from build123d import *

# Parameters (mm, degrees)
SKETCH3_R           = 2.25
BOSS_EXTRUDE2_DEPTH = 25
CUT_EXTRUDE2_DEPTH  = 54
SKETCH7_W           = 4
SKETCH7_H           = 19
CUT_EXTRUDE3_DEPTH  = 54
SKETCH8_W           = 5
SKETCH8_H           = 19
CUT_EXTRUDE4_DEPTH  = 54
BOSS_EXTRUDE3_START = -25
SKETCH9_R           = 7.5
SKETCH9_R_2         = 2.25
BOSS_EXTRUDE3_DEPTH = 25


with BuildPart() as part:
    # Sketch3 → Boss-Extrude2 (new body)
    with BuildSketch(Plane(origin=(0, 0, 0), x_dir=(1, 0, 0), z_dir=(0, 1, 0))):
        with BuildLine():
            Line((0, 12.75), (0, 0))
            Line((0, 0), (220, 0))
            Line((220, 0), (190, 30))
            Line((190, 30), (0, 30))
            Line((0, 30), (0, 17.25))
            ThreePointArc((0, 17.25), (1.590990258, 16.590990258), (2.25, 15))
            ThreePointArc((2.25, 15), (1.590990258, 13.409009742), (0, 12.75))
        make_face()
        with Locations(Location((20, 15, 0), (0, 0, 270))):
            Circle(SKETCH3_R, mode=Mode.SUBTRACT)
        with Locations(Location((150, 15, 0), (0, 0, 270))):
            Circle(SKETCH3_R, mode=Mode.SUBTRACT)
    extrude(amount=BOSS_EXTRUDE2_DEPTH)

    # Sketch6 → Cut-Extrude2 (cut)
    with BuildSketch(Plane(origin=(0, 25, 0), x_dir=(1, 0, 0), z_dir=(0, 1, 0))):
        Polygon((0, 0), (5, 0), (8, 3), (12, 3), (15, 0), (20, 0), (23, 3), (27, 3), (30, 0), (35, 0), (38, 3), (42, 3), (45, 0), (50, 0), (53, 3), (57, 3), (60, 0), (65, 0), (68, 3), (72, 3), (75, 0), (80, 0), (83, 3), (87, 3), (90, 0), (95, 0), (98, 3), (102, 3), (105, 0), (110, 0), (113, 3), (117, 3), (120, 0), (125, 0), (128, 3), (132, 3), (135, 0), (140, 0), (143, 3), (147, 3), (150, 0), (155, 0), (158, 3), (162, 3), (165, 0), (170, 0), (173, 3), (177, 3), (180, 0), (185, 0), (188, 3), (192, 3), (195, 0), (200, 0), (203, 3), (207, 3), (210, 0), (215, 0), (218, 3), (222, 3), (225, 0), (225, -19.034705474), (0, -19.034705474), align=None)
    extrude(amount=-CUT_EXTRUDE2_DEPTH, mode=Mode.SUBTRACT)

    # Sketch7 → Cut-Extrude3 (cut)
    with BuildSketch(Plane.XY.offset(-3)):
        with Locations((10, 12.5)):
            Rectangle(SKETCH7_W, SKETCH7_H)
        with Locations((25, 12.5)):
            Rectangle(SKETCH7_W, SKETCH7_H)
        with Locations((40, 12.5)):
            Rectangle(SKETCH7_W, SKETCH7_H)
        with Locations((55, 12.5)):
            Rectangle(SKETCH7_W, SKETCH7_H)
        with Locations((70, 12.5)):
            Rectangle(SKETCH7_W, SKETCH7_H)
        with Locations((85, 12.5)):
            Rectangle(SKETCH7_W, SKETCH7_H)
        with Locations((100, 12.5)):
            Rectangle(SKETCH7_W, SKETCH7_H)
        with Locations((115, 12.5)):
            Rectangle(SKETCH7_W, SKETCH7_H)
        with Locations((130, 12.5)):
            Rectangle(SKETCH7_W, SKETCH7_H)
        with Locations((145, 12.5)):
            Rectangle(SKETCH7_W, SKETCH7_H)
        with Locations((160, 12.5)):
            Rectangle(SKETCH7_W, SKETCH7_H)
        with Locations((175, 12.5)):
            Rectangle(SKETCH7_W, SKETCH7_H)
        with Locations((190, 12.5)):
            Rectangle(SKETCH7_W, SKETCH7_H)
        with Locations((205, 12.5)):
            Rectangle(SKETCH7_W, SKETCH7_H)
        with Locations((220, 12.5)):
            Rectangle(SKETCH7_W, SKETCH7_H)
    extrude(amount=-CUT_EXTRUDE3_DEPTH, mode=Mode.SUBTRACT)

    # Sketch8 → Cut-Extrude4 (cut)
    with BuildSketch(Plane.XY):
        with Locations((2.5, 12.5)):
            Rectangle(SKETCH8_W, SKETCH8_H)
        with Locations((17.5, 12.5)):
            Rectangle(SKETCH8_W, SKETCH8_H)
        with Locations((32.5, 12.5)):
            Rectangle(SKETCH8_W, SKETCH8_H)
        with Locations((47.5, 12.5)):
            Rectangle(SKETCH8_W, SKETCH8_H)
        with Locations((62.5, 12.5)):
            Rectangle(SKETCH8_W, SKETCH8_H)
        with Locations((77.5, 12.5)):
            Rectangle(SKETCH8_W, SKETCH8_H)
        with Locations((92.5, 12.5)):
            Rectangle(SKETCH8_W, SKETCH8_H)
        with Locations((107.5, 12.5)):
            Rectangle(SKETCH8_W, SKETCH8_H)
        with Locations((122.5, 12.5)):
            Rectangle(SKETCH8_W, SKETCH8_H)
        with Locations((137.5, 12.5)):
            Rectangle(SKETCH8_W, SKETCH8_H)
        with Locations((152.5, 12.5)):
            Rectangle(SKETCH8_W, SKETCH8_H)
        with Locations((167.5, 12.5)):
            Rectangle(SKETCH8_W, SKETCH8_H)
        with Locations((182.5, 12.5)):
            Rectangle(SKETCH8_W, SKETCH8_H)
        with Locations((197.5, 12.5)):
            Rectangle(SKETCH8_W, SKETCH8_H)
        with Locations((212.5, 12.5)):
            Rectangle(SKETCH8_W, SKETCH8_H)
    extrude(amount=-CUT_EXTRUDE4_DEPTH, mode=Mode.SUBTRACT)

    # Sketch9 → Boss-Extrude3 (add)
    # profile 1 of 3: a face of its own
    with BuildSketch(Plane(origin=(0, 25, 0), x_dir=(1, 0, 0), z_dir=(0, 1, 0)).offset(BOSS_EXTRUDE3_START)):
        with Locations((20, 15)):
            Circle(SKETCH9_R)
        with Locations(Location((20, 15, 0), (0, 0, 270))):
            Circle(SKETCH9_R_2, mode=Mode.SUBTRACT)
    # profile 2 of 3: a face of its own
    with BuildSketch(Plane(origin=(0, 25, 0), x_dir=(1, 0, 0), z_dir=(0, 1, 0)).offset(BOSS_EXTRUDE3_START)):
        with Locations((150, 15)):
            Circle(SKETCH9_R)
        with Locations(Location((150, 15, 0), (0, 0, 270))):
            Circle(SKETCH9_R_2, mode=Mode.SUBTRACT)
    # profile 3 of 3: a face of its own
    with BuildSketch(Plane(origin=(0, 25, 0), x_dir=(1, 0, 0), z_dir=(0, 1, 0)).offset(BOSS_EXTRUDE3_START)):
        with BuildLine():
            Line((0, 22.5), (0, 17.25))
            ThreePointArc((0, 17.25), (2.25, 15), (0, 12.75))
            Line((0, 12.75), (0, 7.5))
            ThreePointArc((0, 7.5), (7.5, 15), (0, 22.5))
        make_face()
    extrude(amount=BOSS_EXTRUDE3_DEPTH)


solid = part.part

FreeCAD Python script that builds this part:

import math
import FreeCAD as App
import Part
import Sketcher
from FreeCAD import Vector
Q = App.Units.Quantity

doc = App.newDocument("Part")
body = doc.addObject("PartDesign::Body", "Body")

# Sketch on XZ plane
sketch1 = body.newObject("Sketcher::SketchObject", "Sketch")
sketch1.AttachmentSupport = (doc.getObject("XZ_Plane"), [""])
sketch1.MapMode = "FlatFace"
sketch1.addGeometry([
    Part.LineSegment(Vector(0, -12.8, 0), Vector(0, 0, 0)),  # 0
    Part.LineSegment(Vector(0, 0, 0), Vector(220, 0, 0)),  # 1
    Part.LineSegment(Vector(220, 0, 0), Vector(190, -30, 0)),  # 2
    Part.LineSegment(Vector(190, -30, 0), Vector(0, -30, 0)),  # 3
    Part.LineSegment(Vector(0, -30, 0), Vector(0, -17.2, 0)),  # 4
    Part.ArcOfCircle(Part.Circle(Vector(0, -15, 0), Vector(0, 0, 1), 2.2), math.radians(-90), math.radians(0)),  # 5
    Part.ArcOfCircle(Part.Circle(Vector(0, -15, 0), Vector(0, 0, 1), 2.2), math.radians(0), math.radians(90)),  # 6
    Part.Circle(Vector(20, -15, 0), Vector(0, 0, 1), 2.2),  # 7
    Part.Circle(Vector(150, -15, 0), Vector(0, 0, 1), 2.2),  # 8
], False)
sketch1.addConstraint([
    Sketcher.Constraint("Coincident", 0, 2, 1, 1),
    Sketcher.Constraint("Coincident", 1, 2, 2, 1),
    Sketcher.Constraint("Coincident", 2, 2, 3, 1),
    Sketcher.Constraint("Coincident", 3, 2, 4, 1),
    Sketcher.Constraint("Coincident", 4, 2, 5, 1),
    Sketcher.Constraint("Tangent", 5, 2, 6, 1),
    Sketcher.Constraint("Coincident", 6, 2, 0, 1),
    Sketcher.Constraint("Vertical", 0),
    Sketcher.Constraint("Horizontal", 1),
    Sketcher.Constraint("Horizontal", 3),
    Sketcher.Constraint("Vertical", 4),
    Sketcher.Constraint("Coincident", 0, 2, -1, 1),
    Sketcher.Constraint("Equal", 5, 6),
    Sketcher.Constraint("Equal", 6, 7),
    Sketcher.Constraint("Equal", 7, 8),
    Sketcher.Constraint("PointOnObject", 5, 3, -2),
    Sketcher.Constraint("PointOnObject", 3, 2, -2),
    Sketcher.Constraint("Horizontal", 6, 3, 7, 3),
    Sketcher.Constraint("Horizontal", 7, 3, 8, 3),
    Sketcher.Constraint("Horizontal", 8, 3, 5, 2),
    Sketcher.Constraint("Equal", 0, 4),
    Sketcher.Constraint("Diameter", 7, 4.5),
    Sketcher.Constraint("DistanceX", 1, 1, 1, 2, 220.0),
    Sketcher.Constraint("DistanceX", 3, 2, 3, 1, 190.0),
    Sketcher.Constraint("Angle", 2, Q("-135 deg")),
    Sketcher.Constraint("DistanceX", -1, 1, 7, 3, 20.0),
    Sketcher.Constraint("DistanceX", -1, 1, 8, 3, 150.0),
])
pad1 = body.newObject("PartDesign::Pad", "Pad")
pad1.Profile = sketch1
pad1.Length = 25
pad1.Reversed = True

# Sketch on XZ plane
sketch2 = body.newObject("Sketcher::SketchObject", "Sketch001")
sketch2.AttachmentSupport = (doc.getObject("XZ_Plane"), [""])
sketch2.MapMode = "FlatFace"
sketch2.AttachmentOffset = App.Placement(Vector(0, 0, -25), App.Rotation())
sketch2.addGeometry([
    Part.LineSegment(Vector(5, 0, 0), Vector(0, 0, 0)),  # 0
    Part.LineSegment(Vector(0, 0, 0), Vector(0, 19, 0)),  # 1
    Part.LineSegment(Vector(0, 19, 0), Vector(225, 19, 0)),  # 2
    Part.LineSegment(Vector(225, 19, 0), Vector(225, 0, 0)),  # 3
    Part.LineSegment(Vector(225, 0, 0), Vector(222, -3, 0)),  # 4
    Part.LineSegment(Vector(222, -3, 0), Vector(218, -3, 0)),  # 5
    Part.LineSegment(Vector(218, -3, 0), Vector(215, 0, 0)),  # 6
    Part.LineSegment(Vector(215, 0, 0), Vector(210, 0, 0)),  # 7
    Part.LineSegment(Vector(210, 0, 0), Vector(207, -3, 0)),  # 8
    Part.LineSegment(Vector(207, -3, 0), Vector(203, -3, 0)),  # 9
    Part.LineSegment(Vector(203, -3, 0), Vector(200, 0, 0)),  # 10
    Part.LineSegment(Vector(200, 0, 0), Vector(195, 0, 0)),  # 11
    Part.LineSegment(Vector(195, 0, 0), Vector(192, -3, 0)),  # 12
    Part.LineSegment(Vector(192, -3, 0), Vector(188, -3, 0)),  # 13
    Part.LineSegment(Vector(188, -3, 0), Vector(185, 0, 0)),  # 14
    Part.LineSegment(Vector(185, 0, 0), Vector(180, 0, 0)),  # 15
    Part.LineSegment(Vector(180, 0, 0), Vector(177, -3, 0)),  # 16
    Part.LineSegment(Vector(177, -3, 0), Vector(173, -3, 0)),  # 17
    Part.LineSegment(Vector(173, -3, 0), Vector(170, 0, 0)),  # 18
    Part.LineSegment(Vector(170, 0, 0), Vector(165, 0, 0)),  # 19
    Part.LineSegment(Vector(165, 0, 0), Vector(162, -3, 0)),  # 20
    Part.LineSegment(Vector(162, -3, 0), Vector(158, -3, 0)),  # 21
    Part.LineSegment(Vector(158, -3, 0), Vector(155, 0, 0)),  # 22
    Part.LineSegment(Vector(155, 0, 0), Vector(150, 0, 0)),  # 23
    Part.LineSegment(Vector(150, 0, 0), Vector(147, -3, 0)),  # 24
    Part.LineSegment(Vector(147, -3, 0), Vector(143, -3, 0)),  # 25
    Part.LineSegment(Vector(143, -3, 0), Vector(140, 0, 0)),  # 26
    Part.LineSegment(Vector(140, 0, 0), Vector(135, 0, 0)),  # 27
    Part.LineSegment(Vector(135, 0, 0), Vector(132, -3, 0)),  # 28
    Part.LineSegment(Vector(132, -3, 0), Vector(128, -3, 0)),  # 29
    Part.LineSegment(Vector(128, -3, 0), Vector(125, 0, 0)),  # 30
    Part.LineSegment(Vector(125, 0, 0), Vector(120, 0, 0)),  # 31
    Part.LineSegment(Vector(120, 0, 0), Vector(117, -3, 0)),  # 32
    Part.LineSegment(Vector(117, -3, 0), Vector(113, -3, 0)),  # 33
    Part.LineSegment(Vector(113, -3, 0), Vector(110, 0, 0)),  # 34
    Part.LineSegment(Vector(110, 0, 0), Vector(105, 0, 0)),  # 35
    Part.LineSegment(Vector(105, 0, 0), Vector(102, -3, 0)),  # 36
    Part.LineSegment(Vector(102, -3, 0), Vector(98, -3, 0)),  # 37
    Part.LineSegment(Vector(98, -3, 0), Vector(95, 0, 0)),  # 38
    Part.LineSegment(Vector(95, 0, 0), Vector(90, 0, 0)),  # 39
    Part.LineSegment(Vector(90, 0, 0), Vector(87, -3, 0)),  # 40
    Part.LineSegment(Vector(87, -3, 0), Vector(83, -3, 0)),  # 41
    Part.LineSegment(Vector(83, -3, 0), Vector(80, 0, 0)),  # 42
    Part.LineSegment(Vector(80, 0, 0), Vector(75, 0, 0)),  # 43
    Part.LineSegment(Vector(75, 0, 0), Vector(72, -3, 0)),  # 44
    Part.LineSegment(Vector(72, -3, 0), Vector(68, -3, 0)),  # 45
    Part.LineSegment(Vector(68, -3, 0), Vector(65, 0, 0)),  # 46
    Part.LineSegment(Vector(65, 0, 0), Vector(60, 0, 0)),  # 47
    Part.LineSegment(Vector(60, 0, 0), Vector(57, -3, 0)),  # 48
    Part.LineSegment(Vector(57, -3, 0), Vector(53, -3, 0)),  # 49
    Part.LineSegment(Vector(53, -3, 0), Vector(50, 0, 0)),  # 50
    Part.LineSegment(Vector(50, 0, 0), Vector(45, 0, 0)),  # 51
    Part.LineSegment(Vector(45, 0, 0), Vector(42, -3, 0)),  # 52
    Part.LineSegment(Vector(42, -3, 0), Vector(38, -3, 0)),  # 53
    Part.LineSegment(Vector(38, -3, 0), Vector(35, 0, 0)),  # 54
    Part.LineSegment(Vector(35, 0, 0), Vector(30, 0, 0)),  # 55
    Part.LineSegment(Vector(30, 0, 0), Vector(27, -3, 0)),  # 56
    Part.LineSegment(Vector(27, -3, 0), Vector(23, -3, 0)),  # 57
    Part.LineSegment(Vector(23, -3, 0), Vector(20, 0, 0)),  # 58
    Part.LineSegment(Vector(20, 0, 0), Vector(15, 0, 0)),  # 59
    Part.LineSegment(Vector(15, 0, 0), Vector(12, -3, 0)),  # 60
    Part.LineSegment(Vector(12, -3, 0), Vector(8, -3, 0)),  # 61
    Part.LineSegment(Vector(8, -3, 0), Vector(5, 0, 0)),  # 62
], False)
sketch2.addConstraint([
    Sketcher.Constraint("Coincident", 0, 2, 1, 1),
    Sketcher.Constraint("Coincident", 1, 2, 2, 1),
    Sketcher.Constraint("Coincident", 2, 2, 3, 1),
    Sketcher.Constraint("Coincident", 3, 2, 4, 1),
    Sketcher.Constraint("Coincident", 4, 2, 5, 1),
    Sketcher.Constraint("Coincident", 5, 2, 6, 1),
    Sketcher.Constraint("Coincident", 6, 2, 7, 1),
    Sketcher.Constraint("Coincident", 7, 2, 8, 1),
    Sketcher.Constraint("Coincident", 8, 2, 9, 1),
    Sketcher.Constraint("Coincident", 9, 2, 10, 1),
    Sketcher.Constraint("Coincident", 10, 2, 11, 1),
    Sketcher.Constraint("Coincident", 11, 2, 12, 1),
    Sketcher.Constraint("Coincident", 12, 2, 13, 1),
    Sketcher.Constraint("Coincident", 13, 2, 14, 1),
    Sketcher.Constraint("Coincident", 14, 2, 15, 1),
    Sketcher.Constraint("Coincident", 15, 2, 16, 1),
    Sketcher.Constraint("Coincident", 16, 2, 17, 1),
    Sketcher.Constraint("Coincident", 17, 2, 18, 1),
    Sketcher.Constraint("Coincident", 18, 2, 19, 1),
    Sketcher.Constraint("Coincident", 19, 2, 20, 1),
    Sketcher.Constraint("Coincident", 20, 2, 21, 1),
    Sketcher.Constraint("Coincident", 21, 2, 22, 1),
    Sketcher.Constraint("Coincident", 22, 2, 23, 1),
    Sketcher.Constraint("Coincident", 23, 2, 24, 1),
    Sketcher.Constraint("Coincident", 24, 2, 25, 1),
    Sketcher.Constraint("Coincident", 25, 2, 26, 1),
    Sketcher.Constraint("Coincident", 26, 2, 27, 1),
    Sketcher.Constraint("Coincident", 27, 2, 28, 1),
    Sketcher.Constraint("Coincident", 28, 2, 29, 1),
    Sketcher.Constraint("Coincident", 29, 2, 30, 1),
    Sketcher.Constraint("Coincident", 30, 2, 31, 1),
    Sketcher.Constraint("Coincident", 31, 2, 32, 1),
    Sketcher.Constraint("Coincident", 32, 2, 33, 1),
    Sketcher.Constraint("Coincident", 33, 2, 34, 1),
    Sketcher.Constraint("Coincident", 34, 2, 35, 1),
    Sketcher.Constraint("Coincident", 35, 2, 36, 1),
    Sketcher.Constraint("Coincident", 36, 2, 37, 1),
    Sketcher.Constraint("Coincident", 37, 2, 38, 1),
    Sketcher.Constraint("Coincident", 38, 2, 39, 1),
    Sketcher.Constraint("Coincident", 39, 2, 40, 1),
    Sketcher.Constraint("Coincident", 40, 2, 41, 1),
    Sketcher.Constraint("Coincident", 41, 2, 42, 1),
    Sketcher.Constraint("Coincident", 42, 2, 43, 1),
    Sketcher.Constraint("Coincident", 43, 2, 44, 1),
    Sketcher.Constraint("Coincident", 44, 2, 45, 1),
    Sketcher.Constraint("Coincident", 45, 2, 46, 1),
    Sketcher.Constraint("Coincident", 46, 2, 47, 1),
    Sketcher.Constraint("Coincident", 47, 2, 48, 1),
    Sketcher.Constraint("Coincident", 48, 2, 49, 1),
    Sketcher.Constraint("Coincident", 49, 2, 50, 1),
    Sketcher.Constraint("Coincident", 50, 2, 51, 1),
    Sketcher.Constraint("Coincident", 51, 2, 52, 1),
    Sketcher.Constraint("Coincident", 52, 2, 53, 1),
    Sketcher.Constraint("Coincident", 53, 2, 54, 1),
    Sketcher.Constraint("Coincident", 54, 2, 55, 1),
    Sketcher.Constraint("Coincident", 55, 2, 56, 1),
    Sketcher.Constraint("Coincident", 56, 2, 57, 1),
    Sketcher.Constraint("Coincident", 57, 2, 58, 1),
    Sketcher.Constraint("Coincident", 58, 2, 59, 1),
    Sketcher.Constraint("Coincident", 59, 2, 60, 1),
    Sketcher.Constraint("Coincident", 60, 2, 61, 1),
    Sketcher.Constraint("Coincident", 61, 2, 62, 1),
    Sketcher.Constraint("Coincident", 62, 2, 0, 1),
    Sketcher.Constraint("Horizontal", 0),
    Sketcher.Constraint("Vertical", 1),
    Sketcher.Constraint("Horizontal", 2),
    Sketcher.Constraint("Vertical", 3),
    Sketcher.Constraint("Horizontal", 5),
    Sketcher.Constraint("Horizontal", 7),
    Sketcher.Constraint("Horizontal", 9),
    Sketcher.Constraint("Horizontal", 11),
    Sketcher.Constraint("Horizontal", 13),
    Sketcher.Constraint("Horizontal", 15),
    Sketcher.Constraint("Horizontal", 17),
    Sketcher.Constraint("Horizontal", 19),
    Sketcher.Constraint("Horizontal", 21),
    Sketcher.Constraint("Horizontal", 23),
    Sketcher.Constraint("Horizontal", 25),
    Sketcher.Constraint("Horizontal", 27),
    Sketcher.Constraint("Horizontal", 29),
    Sketcher.Constraint("Horizontal", 31),
    Sketcher.Constraint("Horizontal", 33),
    Sketcher.Constraint("Horizontal", 35),
    Sketcher.Constraint("Horizontal", 37),
    Sketcher.Constraint("Horizontal", 39),
    Sketcher.Constraint("Horizontal", 41),
    Sketcher.Constraint("Horizontal", 43),
    Sketcher.Constraint("Horizontal", 45),
    Sketcher.Constraint("Horizontal", 47),
    Sketcher.Constraint("Horizontal", 49),
    Sketcher.Constraint("Horizontal", 51),
    Sketcher.Constraint("Horizontal", 53),
    Sketcher.Constraint("Horizontal", 55),
    Sketcher.Constraint("Horizontal", 57),
    Sketcher.Constraint("Horizontal", 59),
    Sketcher.Constraint("Horizontal", 61),
    Sketcher.Constraint("Coincident", 0, 2, -1, 1),
    Sketcher.Constraint("PointOnObject", 3, 2, -1),
    Sketcher.Constraint("PointOnObject", 6, 2, -1),
    Sketcher.Constraint("PointOnObject", 10, 2, -1),
    Sketcher.Constraint("PointOnObject", 14, 2, -1),
    Sketcher.Constraint("PointOnObject", 18, 2, -1),
    Sketcher.Constraint("PointOnObject", 22, 2, -1),
    Sketcher.Constraint("PointOnObject", 26, 2, -1),
    Sketcher.Constraint("PointOnObject", 30, 2, -1),
    Sketcher.Constraint("PointOnObject", 34, 2, -1),
    Sketcher.Constraint("PointOnObject", 38, 2, -1),
    Sketcher.Constraint("PointOnObject", 42, 2, -1),
    Sketcher.Constraint("PointOnObject", 46, 2, -1),
    Sketcher.Constraint("PointOnObject", 50, 2, -1),
    Sketcher.Constraint("PointOnObject", 54, 2, -1),
    Sketcher.Constraint("PointOnObject", 58, 2, -1),
    Sketcher.Constraint("Perpendicular", 4, 6),
    Sketcher.Constraint("Perpendicular", 6, 8),
    Sketcher.Constraint("Perpendicular", 8, 10),
    Sketcher.Constraint("Perpendicular", 10, 12),
    Sketcher.Constraint("Perpendicular", 12, 14),
    Sketcher.Constraint("Perpendicular", 14, 16),
    Sketcher.Constraint("Perpendicular", 16, 18),
    Sketcher.Constraint("Perpendicular", 18, 20),
    Sketcher.Constraint("Perpendicular", 20, 22),
    Sketcher.Constraint("Perpendicular", 22, 24),
    Sketcher.Constraint("Perpendicular", 24, 26),
    Sketcher.Constraint("Perpendicular", 26, 28),
    Sketcher.Constraint("Perpendicular", 28, 30),
    Sketcher.Constraint("Perpendicular", 30, 32),
    Sketcher.Constraint("Perpendicular", 32, 34),
    Sketcher.Constraint("Perpendicular", 34, 36),
    Sketcher.Constraint("Perpendicular", 36, 38),
    Sketcher.Constraint("Perpendicular", 38, 40),
    Sketcher.Constraint("Perpendicular", 40, 42),
    Sketcher.Constraint("Perpendicular", 42, 44),
    Sketcher.Constraint("Perpendicular", 44, 46),
    Sketcher.Constraint("Perpendicular", 46, 48),
    Sketcher.Constraint("Perpendicular", 48, 50),
    Sketcher.Constraint("Perpendicular", 50, 52),
    Sketcher.Constraint("Perpendicular", 52, 54),
    Sketcher.Constraint("Perpendicular", 54, 56),
    Sketcher.Constraint("Perpendicular", 56, 58),
    Sketcher.Constraint("Perpendicular", 58, 60),
    Sketcher.Constraint("Perpendicular", 60, 62),
    Sketcher.Constraint("Horizontal", 5, 2, 8, 2),
    Sketcher.Constraint("Horizontal", 9, 2, 12, 2),
    Sketcher.Constraint("Horizontal", 13, 2, 16, 2),
    Sketcher.Constraint("Horizontal", 17, 2, 20, 2),
    Sketcher.Constraint("Horizontal", 21, 2, 24, 2),
    Sketcher.Constraint("Horizontal", 25, 2, 28, 2),
    Sketcher.Constraint("Horizontal", 29, 2, 32, 2),
    Sketcher.Constraint("Horizontal", 33, 2, 36, 2),
    Sketcher.Constraint("Horizontal", 37, 2, 40, 2),
    Sketcher.Constraint("Horizontal", 41, 2, 44, 2),
    Sketcher.Constraint("Horizontal", 45, 2, 48, 2),
    Sketcher.Constraint("Horizontal", 49, 2, 52, 2),
    Sketcher.Constraint("Horizontal", 53, 2, 56, 2),
    Sketcher.Constraint("Horizontal", 57, 2, 60, 2),
    Sketcher.Constraint("Equal", 0, 7),
    Sketcher.Constraint("Equal", 5, 9),
    Sketcher.Constraint("Equal", 7, 11),
    Sketcher.Constraint("Equal", 9, 13),
    Sketcher.Constraint("Equal", 11, 15),
    Sketcher.Constraint("Equal", 13, 17),
    Sketcher.Constraint("Equal", 15, 19),
    Sketcher.Constraint("Equal", 17, 21),
    Sketcher.Constraint("Equal", 19, 23),
    Sketcher.Constraint("Equal", 21, 25),
    Sketcher.Constraint("Equal", 23, 27),
    Sketcher.Constraint("Equal", 25, 29),
    Sketcher.Constraint("Equal", 27, 31),
    Sketcher.Constraint("Equal", 29, 33),
    Sketcher.Constraint("Equal", 31, 35),
    Sketcher.Constraint("Equal", 33, 37),
    Sketcher.Constraint("Equal", 35, 39),
    Sketcher.Constraint("Equal", 37, 41),
    Sketcher.Constraint("Equal", 39, 43),
    Sketcher.Constraint("Equal", 41, 45),
    Sketcher.Constraint("Equal", 43, 47),
    Sketcher.Constraint("Equal", 45, 49),
    Sketcher.Constraint("Equal", 47, 51),
    Sketcher.Constraint("Equal", 49, 53),
    Sketcher.Constraint("Equal", 51, 55),
    Sketcher.Constraint("Equal", 53, 57),
    Sketcher.Constraint("Equal", 55, 59),
    Sketcher.Constraint("Equal", 57, 61),
    Sketcher.Constraint("Equal", 4, 6),
    Sketcher.Constraint("DistanceX", 0, 2, 0, 1, 5.0),
    Sketcher.Constraint("DistanceX", 2, 1, 2, 2, 225.0),
    Sketcher.Constraint("DistanceX", 5, 2, 5, 1, 4.0),
    Sketcher.Constraint("DistanceY", 1, 1, 1, 2, 19.034705),
])
pocket1 = body.newObject("PartDesign::Pocket", "Pocket")
pocket1.Profile = sketch2
pocket1.Length = 54
pocket1.Reversed = True

# Sketch on XY plane
sketch3 = body.newObject("Sketcher::SketchObject", "Sketch002")
sketch3.AttachmentSupport = (doc.getObject("XY_Plane"), [""])
sketch3.MapMode = "FlatFace"
sketch3.AttachmentOffset = App.Placement(Vector(0, 0, -3), App.Rotation())
sketch3.addGeometry([
    Part.LineSegment(Vector(8, 22, 0), Vector(8, 3, 0)),  # 0
    Part.LineSegment(Vector(8, 3, 0), Vector(12, 3, 0)),  # 1
    Part.LineSegment(Vector(12, 3, 0), Vector(12, 22, 0)),  # 2
    Part.LineSegment(Vector(12, 22, 0), Vector(8, 22, 0)),  # 3
    Part.LineSegment(Vector(23, 22, 0), Vector(23, 3, 0)),  # 4
    Part.LineSegment(Vector(23, 3, 0), Vector(27, 3, 0)),  # 5
    Part.LineSegment(Vector(27, 3, 0), Vector(27, 22, 0)),  # 6
    Part.LineSegment(Vector(27, 22, 0), Vector(23, 22, 0)),  # 7
    Part.LineSegment(Vector(38, 22, 0), Vector(38, 3, 0)),  # 8
    Part.LineSegment(Vector(38, 3, 0), Vector(42, 3, 0)),  # 9
    Part.LineSegment(Vector(42, 3, 0), Vector(42, 22, 0)),  # 10
    Part.LineSegment(Vector(42, 22, 0), Vector(38, 22, 0)),  # 11
    Part.LineSegment(Vector(53, 22, 0), Vector(53, 3, 0)),  # 12
    Part.LineSegment(Vector(53, 3, 0), Vector(57, 3, 0)),  # 13
    Part.LineSegment(Vector(57, 3, 0), Vector(57, 22, 0)),  # 14
    Part.LineSegment(Vector(57, 22, 0), Vector(53, 22, 0)),  # 15
    Part.LineSegment(Vector(68, 22, 0), Vector(68, 3, 0)),  # 16
    Part.LineSegment(Vector(68, 3, 0), Vector(72, 3, 0)),  # 17
    Part.LineSegment(Vector(72, 3, 0), Vector(72, 22, 0)),  # 18
    Part.LineSegment(Vector(72, 22, 0), Vector(68, 22, 0)),  # 19
    Part.LineSegment(Vector(83, 22, 0), Vector(83, 3, 0)),  # 20
    Part.LineSegment(Vector(83, 3, 0), Vector(87, 3, 0)),  # 21
    Part.LineSegment(Vector(87, 3, 0), Vector(87, 22, 0)),  # 22
    Part.LineSegment(Vector(87, 22, 0), Vector(83, 22, 0)),  # 23
    Part.LineSegment(Vector(98, 22, 0), Vector(98, 3, 0)),  # 24
    Part.LineSegment(Vector(98, 3, 0), Vector(102, 3, 0)),  # 25
    Part.LineSegment(Vector(102, 3, 0), Vector(102, 22, 0)),  # 26
    Part.LineSegment(Vector(102, 22, 0), Vector(98, 22, 0)),  # 27
    Part.LineSegment(Vector(113, 22, 0), Vector(113, 3, 0)),  # 28
    Part.LineSegment(Vector(113, 3, 0), Vector(117, 3, 0)),  # 29
    Part.LineSegment(Vector(117, 3, 0), Vector(117, 22, 0)),  # 30
    Part.LineSegment(Vector(117, 22, 0), Vector(113, 22, 0)),  # 31
    Part.LineSegment(Vector(128, 22, 0), Vector(128, 3, 0)),  # 32
    Part.LineSegment(Vector(128, 3, 0), Vector(132, 3, 0)),  # 33
    Part.LineSegment(Vector(132, 3, 0), Vector(132, 22, 0)),  # 34
    Part.LineSegment(Vector(132, 22, 0), Vector(128, 22, 0)),  # 35
    Part.LineSegment(Vector(143, 22, 0), Vector(143, 3, 0)),  # 36
    Part.LineSegment(Vector(143, 3, 0), Vector(147, 3, 0)),  # 37
    Part.LineSegment(Vector(147, 3, 0), Vector(147, 22, 0)),  # 38
    Part.LineSegment(Vector(147, 22, 0), Vector(143, 22, 0)),  # 39
    Part.LineSegment(Vector(158, 22, 0), Vector(158, 3, 0)),  # 40
    Part.LineSegment(Vector(158, 3, 0), Vector(162, 3, 0)),  # 41
    Part.LineSegment(Vector(162, 3, 0), Vector(162, 22, 0)),  # 42
    Part.LineSegment(Vector(162, 22, 0), Vector(158, 22, 0)),  # 43
    Part.LineSegment(Vector(173, 22, 0), Vector(173, 3, 0)),  # 44
    Part.LineSegment(Vector(173, 3, 0), Vector(177, 3, 0)),  # 45
    Part.LineSegment(Vector(177, 3, 0), Vector(177, 22, 0)),  # 46
    Part.LineSegment(Vector(177, 22, 0), Vector(173, 22, 0)),  # 47
    Part.LineSegment(Vector(188, 22, 0), Vector(188, 3, 0)),  # 48
    Part.LineSegment(Vector(188, 3, 0), Vector(192, 3, 0)),  # 49
    Part.LineSegment(Vector(192, 3, 0), Vector(192, 22, 0)),  # 50
    Part.LineSegment(Vector(192, 22, 0), Vector(188, 22, 0)),  # 51
    Part.LineSegment(Vector(203, 22, 0), Vector(203, 3, 0)),  # 52
    Part.LineSegment(Vector(203, 3, 0), Vector(207, 3, 0)),  # 53
    Part.LineSegment(Vector(207, 3, 0), Vector(207, 22, 0)),  # 54
    Part.LineSegment(Vector(207, 22, 0), Vector(203, 22, 0)),  # 55
    Part.LineSegment(Vector(218, 22, 0), Vector(218, 3, 0)),  # 56
    Part.LineSegment(Vector(218, 3, 0), Vector(222, 3, 0)),  # 57
    Part.LineSegment(Vector(222, 3, 0), Vector(222, 22, 0)),  # 58
    Part.LineSegment(Vector(222, 22, 0), Vector(218, 22, 0)),  # 59
], False)
sketch3.addConstraint([
    Sketcher.Constraint("Coincident", 0, 2, 1, 1),
    Sketcher.Constraint("Coincident", 1, 2, 2, 1),
    Sketcher.Constraint("Coincident", 2, 2, 3, 1),
    Sketcher.Constraint("Coincident", 3, 2, 0, 1),
    Sketcher.Constraint("Coincident", 4, 2, 5, 1),
    Sketcher.Constraint("Coincident", 5, 2, 6, 1),
    Sketcher.Constraint("Coincident", 6, 2, 7, 1),
    Sketcher.Constraint("Coincident", 7, 2, 4, 1),
    Sketcher.Constraint("Coincident", 8, 2, 9, 1),
    Sketcher.Constraint("Coincident", 9, 2, 10, 1),
    Sketcher.Constraint("Coincident", 10, 2, 11, 1),
    Sketcher.Constraint("Coincident", 11, 2, 8, 1),
    Sketcher.Constraint("Coincident", 12, 2, 13, 1),
    Sketcher.Constraint("Coincident", 13, 2, 14, 1),
    Sketcher.Constraint("Coincident", 14, 2, 15, 1),
    Sketcher.Constraint("Coincident", 15, 2, 12, 1),
    Sketcher.Constraint("Coincident", 16, 2, 17, 1),
    Sketcher.Constraint("Coincident", 17, 2, 18, 1),
    Sketcher.Constraint("Coincident", 18, 2, 19, 1),
    Sketcher.Constraint("Coincident", 19, 2, 16, 1),
    Sketcher.Constraint("Coincident", 20, 2, 21, 1),
    Sketcher.Constraint("Coincident", 21, 2, 22, 1),
    Sketcher.Constraint("Coincident", 22, 2, 23, 1),
    Sketcher.Constraint("Coincident", 23, 2, 20, 1),
    Sketcher.Constraint("Coincident", 24, 2, 25, 1),
    Sketcher.Constraint("Coincident", 25, 2, 26, 1),
    Sketcher.Constraint("Coincident", 26, 2, 27, 1),
    Sketcher.Constraint("Coincident", 27, 2, 24, 1),
    Sketcher.Constraint("Coincident", 28, 2, 29, 1),
    Sketcher.Constraint("Coincident", 29, 2, 30, 1),
    Sketcher.Constraint("Coincident", 30, 2, 31, 1),
    Sketcher.Constraint("Coincident", 31, 2, 28, 1),
    Sketcher.Constraint("Coincident", 32, 2, 33, 1),
    Sketcher.Constraint("Coincident", 33, 2, 34, 1),
    Sketcher.Constraint("Coincident", 34, 2, 35, 1),
    Sketcher.Constraint("Coincident", 35, 2, 32, 1),
    Sketcher.Constraint("Coincident", 36, 2, 37, 1),
    Sketcher.Constraint("Coincident", 37, 2, 38, 1),
    Sketcher.Constraint("Coincident", 38, 2, 39, 1),
    Sketcher.Constraint("Coincident", 39, 2, 36, 1),
    Sketcher.Constraint("Coincident", 40, 2, 41, 1),
    Sketcher.Constraint("Coincident", 41, 2, 42, 1),
    Sketcher.Constraint("Coincident", 42, 2, 43, 1),
    Sketcher.Constraint("Coincident", 43, 2, 40, 1),
    Sketcher.Constraint("Coincident", 44, 2, 45, 1),
    Sketcher.Constraint("Coincident", 45, 2, 46, 1),
    Sketcher.Constraint("Coincident", 46, 2, 47, 1),
    Sketcher.Constraint("Coincident", 47, 2, 44, 1),
    Sketcher.Constraint("Coincident", 48, 2, 49, 1),
    Sketcher.Constraint("Coincident", 49, 2, 50, 1),
    Sketcher.Constraint("Coincident", 50, 2, 51, 1),
    Sketcher.Constraint("Coincident", 51, 2, 48, 1),
    Sketcher.Constraint("Coincident", 52, 2, 53, 1),
    Sketcher.Constraint("Coincident", 53, 2, 54, 1),
    Sketcher.Constraint("Coincident", 54, 2, 55, 1),
    Sketcher.Constraint("Coincident", 55, 2, 52, 1),
    Sketcher.Constraint("Coincident", 56, 2, 57, 1),
    Sketcher.Constraint("Coincident", 57, 2, 58, 1),
    Sketcher.Constraint("Coincident", 58, 2, 59, 1),
    Sketcher.Constraint("Coincident", 59, 2, 56, 1),
    Sketcher.Constraint("Vertical", 0),
    Sketcher.Constraint("Horizontal", 1),
    Sketcher.Constraint("Vertical", 2),
    Sketcher.Constraint("Horizontal", 3),
    Sketcher.Constraint("Vertical", 4),
    Sketcher.Constraint("Horizontal", 5),
    Sketcher.Constraint("Vertical", 6),
    Sketcher.Constraint("Horizontal", 7),
    Sketcher.Constraint("Vertical", 8),
    Sketcher.Constraint("Horizontal", 9),
    Sketcher.Constraint("Vertical", 10),
    Sketcher.Constraint("Horizontal", 11),
    Sketcher.Constraint("Vertical", 12),
    Sketcher.Constraint("Horizontal", 13),
    Sketcher.Constraint("Vertical", 14),
    Sketcher.Constraint("Horizontal", 15),
    Sketcher.Constraint("Vertical", 16),
    Sketcher.Constraint("Horizontal", 17),
    Sketcher.Constraint("Vertical", 18),
    Sketcher.Constraint("Horizontal", 19),
    Sketcher.Constraint("Vertical", 20),
    Sketcher.Constraint("Horizontal", 21),
    Sketcher.Constraint("Vertical", 22),
    Sketcher.Constraint("Horizontal", 23),
    Sketcher.Constraint("Vertical", 24),
    Sketcher.Constraint("Horizontal", 25),
    Sketcher.Constraint("Vertical", 26),
    Sketcher.Constraint("Horizontal", 27),
    Sketcher.Constraint("Vertical", 28),
    Sketcher.Constraint("Horizontal", 29),
    Sketcher.Constraint("Vertical", 30),
    Sketcher.Constraint("Horizontal", 31),
    Sketcher.Constraint("Vertical", 32),
    Sketcher.Constraint("Horizontal", 33),
    Sketcher.Constraint("Vertical", 34),
    Sketcher.Constraint("Horizontal", 35),
    Sketcher.Constraint("Vertical", 36),
    Sketcher.Constraint("Horizontal", 37),
    Sketcher.Constraint("Vertical", 38),
    Sketcher.Constraint("Horizontal", 39),
    Sketcher.Constraint("Vertical", 40),
    Sketcher.Constraint("Horizontal", 41),
    Sketcher.Constraint("Vertical", 42),
    Sketcher.Constraint("Horizontal", 43),
    Sketcher.Constraint("Vertical", 44),
    Sketcher.Constraint("Horizontal", 45),
    Sketcher.Constraint("Vertical", 46),
    Sketcher.Constraint("Horizontal", 47),
    Sketcher.Constraint("Vertical", 48),
    Sketcher.Constraint("Horizontal", 49),
    Sketcher.Constraint("Vertical", 50),
    Sketcher.Constraint("Horizontal", 51),
    Sketcher.Constraint("Vertical", 52),
    Sketcher.Constraint("Horizontal", 53),
    Sketcher.Constraint("Vertical", 54),
    Sketcher.Constraint("Horizontal", 55),
    Sketcher.Constraint("Vertical", 56),
    Sketcher.Constraint("Horizontal", 57),
    Sketcher.Constraint("Vertical", 58),
    Sketcher.Constraint("Horizontal", 59),
    Sketcher.Constraint("Horizontal", 1, 2, 4, 2),
    Sketcher.Constraint("Horizontal", 3, 2, 6, 2),
    Sketcher.Constraint("Horizontal", 5, 2, 8, 2),
    Sketcher.Constraint("Horizontal", 7, 2, 10, 2),
    Sketcher.Constraint("Horizontal", 9, 2, 12, 2),
    Sketcher.Constraint("Horizontal", 11, 2, 14, 2),
    Sketcher.Constraint("Horizontal", 13, 2, 16, 2),
    Sketcher.Constraint("Horizontal", 15, 2, 18, 2),
    Sketcher.Constraint("Horizontal", 17, 2, 20, 2),
    Sketcher.Constraint("Horizontal", 19, 2, 22, 2),
    Sketcher.Constraint("Horizontal", 21, 2, 24, 2),
    Sketcher.Constraint("Horizontal", 23, 2, 26, 2),
    Sketcher.Constraint("Horizontal", 25, 2, 28, 2),
    Sketcher.Constraint("Horizontal", 27, 2, 30, 2),
    Sketcher.Constraint("Horizontal", 29, 2, 32, 2),
    Sketcher.Constraint("Horizontal", 31, 2, 34, 2),
    Sketcher.Constraint("Horizontal", 33, 2, 36, 2),
    Sketcher.Constraint("Horizontal", 35, 2, 38, 2),
    Sketcher.Constraint("Horizontal", 37, 2, 40, 2),
    Sketcher.Constraint("Horizontal", 39, 2, 42, 2),
    Sketcher.Constraint("Horizontal", 41, 2, 44, 2),
    Sketcher.Constraint("Horizontal", 43, 2, 46, 2),
    Sketcher.Constraint("Horizontal", 45, 2, 48, 2),
    Sketcher.Constraint("Horizontal", 47, 2, 50, 2),
    Sketcher.Constraint("Horizontal", 49, 2, 52, 2),
    Sketcher.Constraint("Horizontal", 51, 2, 54, 2),
    Sketcher.Constraint("Horizontal", 53, 2, 56, 2),
    Sketcher.Constraint("Horizontal", 55, 2, 58, 2),
    Sketcher.Constraint("Equal", 3, 5),
    Sketcher.Constraint("Equal", 7, 9),
    Sketcher.Constraint("Equal", 11, 13),
    Sketcher.Constraint("Equal", 15, 17),
    Sketcher.Constraint("Equal", 19, 21),
    Sketcher.Constraint("Equal", 23, 25),
    Sketcher.Constraint("Equal", 27, 29),
    Sketcher.Constraint("Equal", 31, 33),
    Sketcher.Constraint("Equal", 35, 37),
    Sketcher.Constraint("Equal", 39, 41),
    Sketcher.Constraint("Equal", 43, 45),
    Sketcher.Constraint("Equal", 47, 49),
    Sketcher.Constraint("Equal", 51, 53),
    Sketcher.Constraint("Equal", 55, 57),
    Sketcher.Constraint("DistanceX", 1, 1, 1, 2, 4.0),
    Sketcher.Constraint("DistanceY", 0, 2, 0, 1, 19.0),
    Sketcher.Constraint("DistanceX", -1, 1, 0, 2, 8.0),
    Sketcher.Constraint("DistanceY", -1, 1, 0, 2, 3.0),
    Sketcher.Constraint("DistanceX", -1, 1, 4, 2, 23.0),
    Sketcher.Constraint("DistanceX", -1, 1, 8, 2, 38.0),
    Sketcher.Constraint("DistanceX", -1, 1, 12, 2, 53.0),
    Sketcher.Constraint("DistanceX", -1, 1, 16, 2, 68.0),
    Sketcher.Constraint("DistanceX", -1, 1, 20, 2, 83.0),
    Sketcher.Constraint("DistanceX", -1, 1, 24, 2, 98.0),
    Sketcher.Constraint("DistanceX", -1, 1, 28, 2, 113.0),
    Sketcher.Constraint("DistanceX", -1, 1, 32, 2, 128.0),
    Sketcher.Constraint("DistanceX", -1, 1, 36, 2, 143.0),
    Sketcher.Constraint("DistanceX", -1, 1, 40, 2, 158.0),
    Sketcher.Constraint("DistanceX", -1, 1, 44, 2, 173.0),
    Sketcher.Constraint("DistanceX", -1, 1, 48, 2, 188.0),
    Sketcher.Constraint("DistanceX", -1, 1, 52, 2, 203.0),
    Sketcher.Constraint("DistanceX", -1, 1, 56, 2, 218.0),
])
pocket2 = body.newObject("PartDesign::Pocket", "Pocket001")
pocket2.Profile = sketch3
pocket2.Length = 54

# Sketch on XY plane
sketch4 = body.newObject("Sketcher::SketchObject", "Sketch003")
sketch4.AttachmentSupport = (doc.getObject("XY_Plane"), [""])
sketch4.MapMode = "FlatFace"
sketch4.addGeometry([
    Part.LineSegment(Vector(0, 22, 0), Vector(0, 3, 0)),  # 0
    Part.LineSegment(Vector(0, 3, 0), Vector(5, 3, 0)),  # 1
    Part.LineSegment(Vector(5, 3, 0), Vector(5, 22, 0)),  # 2
    Part.LineSegment(Vector(5, 22, 0), Vector(0, 22, 0)),  # 3
    Part.LineSegment(Vector(15, 22, 0), Vector(15, 3, 0)),  # 4
    Part.LineSegment(Vector(15, 3, 0), Vector(20, 3, 0)),  # 5
    Part.LineSegment(Vector(20, 3, 0), Vector(20, 22, 0)),  # 6
    Part.LineSegment(Vector(20, 22, 0), Vector(15, 22, 0)),  # 7
    Part.LineSegment(Vector(30, 22, 0), Vector(30, 3, 0)),  # 8
    Part.LineSegment(Vector(30, 3, 0), Vector(35, 3, 0)),  # 9
    Part.LineSegment(Vector(35, 3, 0), Vector(35, 22, 0)),  # 10
    Part.LineSegment(Vector(35, 22, 0), Vector(30, 22, 0)),  # 11
    Part.LineSegment(Vector(45, 22, 0), Vector(45, 3, 0)),  # 12
    Part.LineSegment(Vector(45, 3, 0), Vector(50, 3, 0)),  # 13
    Part.LineSegment(Vector(50, 3, 0), Vector(50, 22, 0)),  # 14
    Part.LineSegment(Vector(50, 22, 0), Vector(45, 22, 0)),  # 15
    Part.LineSegment(Vector(60, 22, 0), Vector(60, 3, 0)),  # 16
    Part.LineSegment(Vector(60, 3, 0), Vector(65, 3, 0)),  # 17
    Part.LineSegment(Vector(65, 3, 0), Vector(65, 22, 0)),  # 18
    Part.LineSegment(Vector(65, 22, 0), Vector(60, 22, 0)),  # 19
    Part.LineSegment(Vector(75, 22, 0), Vector(75, 3, 0)),  # 20
    Part.LineSegment(Vector(75, 3, 0), Vector(80, 3, 0)),  # 21
    Part.LineSegment(Vector(80, 3, 0), Vector(80, 22, 0)),  # 22
    Part.LineSegment(Vector(80, 22, 0), Vector(75, 22, 0)),  # 23
    Part.LineSegment(Vector(90, 22, 0), Vector(90, 3, 0)),  # 24
    Part.LineSegment(Vector(90, 3, 0), Vector(95, 3, 0)),  # 25
    Part.LineSegment(Vector(95, 3, 0), Vector(95, 22, 0)),  # 26
    Part.LineSegment(Vector(95, 22, 0), Vector(90, 22, 0)),  # 27
    Part.LineSegment(Vector(105, 22, 0), Vector(105, 3, 0)),  # 28
    Part.LineSegment(Vector(105, 3, 0), Vector(110, 3, 0)),  # 29
    Part.LineSegment(Vector(110, 3, 0), Vector(110, 22, 0)),  # 30
    Part.LineSegment(Vector(110, 22, 0), Vector(105, 22, 0)),  # 31
    Part.LineSegment(Vector(120, 22, 0), Vector(120, 3, 0)),  # 32
    Part.LineSegment(Vector(120, 3, 0), Vector(125, 3, 0)),  # 33
    Part.LineSegment(Vector(125, 3, 0), Vector(125, 22, 0)),  # 34
    Part.LineSegment(Vector(125, 22, 0), Vector(120, 22, 0)),  # 35
    Part.LineSegment(Vector(135, 22, 0), Vector(135, 3, 0)),  # 36
    Part.LineSegment(Vector(135, 3, 0), Vector(140, 3, 0)),  # 37
    Part.LineSegment(Vector(140, 3, 0), Vector(140, 22, 0)),  # 38
    Part.LineSegment(Vector(140, 22, 0), Vector(135, 22, 0)),  # 39
    Part.LineSegment(Vector(150, 22, 0), Vector(150, 3, 0)),  # 40
    Part.LineSegment(Vector(150, 3, 0), Vector(155, 3, 0)),  # 41
    Part.LineSegment(Vector(155, 3, 0), Vector(155, 22, 0)),  # 42
    Part.LineSegment(Vector(155, 22, 0), Vector(150, 22, 0)),  # 43
    Part.LineSegment(Vector(165, 22, 0), Vector(165, 3, 0)),  # 44
    Part.LineSegment(Vector(165, 3, 0), Vector(170, 3, 0)),  # 45
    Part.LineSegment(Vector(170, 3, 0), Vector(170, 22, 0)),  # 46
    Part.LineSegment(Vector(170, 22, 0), Vector(165, 22, 0)),  # 47
    Part.LineSegment(Vector(180, 22, 0), Vector(180, 3, 0)),  # 48
    Part.LineSegment(Vector(180, 3, 0), Vector(185, 3, 0)),  # 49
    Part.LineSegment(Vector(185, 3, 0), Vector(185, 22, 0)),  # 50
    Part.LineSegment(Vector(185, 22, 0), Vector(180, 22, 0)),  # 51
    Part.LineSegment(Vector(195, 22, 0), Vector(195, 3, 0)),  # 52
    Part.LineSegment(Vector(195, 3, 0), Vector(200, 3, 0)),  # 53
    Part.LineSegment(Vector(200, 3, 0), Vector(200, 22, 0)),  # 54
    Part.LineSegment(Vector(200, 22, 0), Vector(195, 22, 0)),  # 55
    Part.LineSegment(Vector(210, 22, 0), Vector(210, 3, 0)),  # 56
    Part.LineSegment(Vector(210, 3, 0), Vector(215, 3, 0)),  # 57
    Part.LineSegment(Vector(215, 3, 0), Vector(215, 22, 0)),  # 58
    Part.LineSegment(Vector(215, 22, 0), Vector(210, 22, 0)),  # 59
], False)
sketch4.addConstraint([
    Sketcher.Constraint("Coincident", 0, 2, 1, 1),
    Sketcher.Constraint("Coincident", 1, 2, 2, 1),
    Sketcher.Constraint("Coincident", 2, 2, 3, 1),
    Sketcher.Constraint("Coincident", 3, 2, 0, 1),
    Sketcher.Constraint("Coincident", 4, 2, 5, 1),
    Sketcher.Constraint("Coincident", 5, 2, 6, 1),
    Sketcher.Constraint("Coincident", 6, 2, 7, 1),
    Sketcher.Constraint("Coincident", 7, 2, 4, 1),
    Sketcher.Constraint("Coincident", 8, 2, 9, 1),
    Sketcher.Constraint("Coincident", 9, 2, 10, 1),
    Sketcher.Constraint("Coincident", 10, 2, 11, 1),
    Sketcher.Constraint("Coincident", 11, 2, 8, 1),
    Sketcher.Constraint("Coincident", 12, 2, 13, 1),
    Sketcher.Constraint("Coincident", 13, 2, 14, 1),
    Sketcher.Constraint("Coincident", 14, 2, 15, 1),
    Sketcher.Constraint("Coincident", 15, 2, 12, 1),
    Sketcher.Constraint("Coincident", 16, 2, 17, 1),
    Sketcher.Constraint("Coincident", 17, 2, 18, 1),
    Sketcher.Constraint("Coincident", 18, 2, 19, 1),
    Sketcher.Constraint("Coincident", 19, 2, 16, 1),
    Sketcher.Constraint("Coincident", 20, 2, 21, 1),
    Sketcher.Constraint("Coincident", 21, 2, 22, 1),
    Sketcher.Constraint("Coincident", 22, 2, 23, 1),
    Sketcher.Constraint("Coincident", 23, 2, 20, 1),
    Sketcher.Constraint("Coincident", 24, 2, 25, 1),
    Sketcher.Constraint("Coincident", 25, 2, 26, 1),
    Sketcher.Constraint("Coincident", 26, 2, 27, 1),
    Sketcher.Constraint("Coincident", 27, 2, 24, 1),
    Sketcher.Constraint("Coincident", 28, 2, 29, 1),
    Sketcher.Constraint("Coincident", 29, 2, 30, 1),
    Sketcher.Constraint("Coincident", 30, 2, 31, 1),
    Sketcher.Constraint("Coincident", 31, 2, 28, 1),
    Sketcher.Constraint("Coincident", 32, 2, 33, 1),
    Sketcher.Constraint("Coincident", 33, 2, 34, 1),
    Sketcher.Constraint("Coincident", 34, 2, 35, 1),
    Sketcher.Constraint("Coincident", 35, 2, 32, 1),
    Sketcher.Constraint("Coincident", 36, 2, 37, 1),
    Sketcher.Constraint("Coincident", 37, 2, 38, 1),
    Sketcher.Constraint("Coincident", 38, 2, 39, 1),
    Sketcher.Constraint("Coincident", 39, 2, 36, 1),
    Sketcher.Constraint("Coincident", 40, 2, 41, 1),
    Sketcher.Constraint("Coincident", 41, 2, 42, 1),
    Sketcher.Constraint("Coincident", 42, 2, 43, 1),
    Sketcher.Constraint("Coincident", 43, 2, 40, 1),
    Sketcher.Constraint("Coincident", 44, 2, 45, 1),
    Sketcher.Constraint("Coincident", 45, 2, 46, 1),
    Sketcher.Constraint("Coincident", 46, 2, 47, 1),
    Sketcher.Constraint("Coincident", 47, 2, 44, 1),
    Sketcher.Constraint("Coincident", 48, 2, 49, 1),
    Sketcher.Constraint("Coincident", 49, 2, 50, 1),
    Sketcher.Constraint("Coincident", 50, 2, 51, 1),
    Sketcher.Constraint("Coincident", 51, 2, 48, 1),
    Sketcher.Constraint("Coincident", 52, 2, 53, 1),
    Sketcher.Constraint("Coincident", 53, 2, 54, 1),
    Sketcher.Constraint("Coincident", 54, 2, 55, 1),
    Sketcher.Constraint("Coincident", 55, 2, 52, 1),
    Sketcher.Constraint("Coincident", 56, 2, 57, 1),
    Sketcher.Constraint("Coincident", 57, 2, 58, 1),
    Sketcher.Constraint("Coincident", 58, 2, 59, 1),
    Sketcher.Constraint("Coincident", 59, 2, 56, 1),
    Sketcher.Constraint("Vertical", 0),
    Sketcher.Constraint("Horizontal", 1),
    Sketcher.Constraint("Vertical", 2),
    Sketcher.Constraint("Horizontal", 3),
    Sketcher.Constraint("Vertical", 4),
    Sketcher.Constraint("Horizontal", 5),
    Sketcher.Constraint("Vertical", 6),
    Sketcher.Constraint("Horizontal", 7),
    Sketcher.Constraint("Vertical", 8),
    Sketcher.Constraint("Horizontal", 9),
    Sketcher.Constraint("Vertical", 10),
    Sketcher.Constraint("Horizontal", 11),
    Sketcher.Constraint("Vertical", 12),
    Sketcher.Constraint("Horizontal", 13),
    Sketcher.Constraint("Vertical", 14),
    Sketcher.Constraint("Horizontal", 15),
    Sketcher.Constraint("Vertical", 16),
    Sketcher.Constraint("Horizontal", 17),
    Sketcher.Constraint("Vertical", 18),
    Sketcher.Constraint("Horizontal", 19),
    Sketcher.Constraint("Vertical", 20),
    Sketcher.Constraint("Horizontal", 21),
    Sketcher.Constraint("Vertical", 22),
    Sketcher.Constraint("Horizontal", 23),
    Sketcher.Constraint("Vertical", 24),
    Sketcher.Constraint("Horizontal", 25),
    Sketcher.Constraint("Vertical", 26),
    Sketcher.Constraint("Horizontal", 27),
    Sketcher.Constraint("Vertical", 28),
    Sketcher.Constraint("Horizontal", 29),
    Sketcher.Constraint("Vertical", 30),
    Sketcher.Constraint("Horizontal", 31),
    Sketcher.Constraint("Vertical", 32),
    Sketcher.Constraint("Horizontal", 33),
    Sketcher.Constraint("Vertical", 34),
    Sketcher.Constraint("Horizontal", 35),
    Sketcher.Constraint("Vertical", 36),
    Sketcher.Constraint("Horizontal", 37),
    Sketcher.Constraint("Vertical", 38),
    Sketcher.Constraint("Horizontal", 39),
    Sketcher.Constraint("Vertical", 40),
    Sketcher.Constraint("Horizontal", 41),
    Sketcher.Constraint("Vertical", 42),
    Sketcher.Constraint("Horizontal", 43),
    Sketcher.Constraint("Vertical", 44),
    Sketcher.Constraint("Horizontal", 45),
    Sketcher.Constraint("Vertical", 46),
    Sketcher.Constraint("Horizontal", 47),
    Sketcher.Constraint("Vertical", 48),
    Sketcher.Constraint("Horizontal", 49),
    Sketcher.Constraint("Vertical", 50),
    Sketcher.Constraint("Horizontal", 51),
    Sketcher.Constraint("Vertical", 52),
    Sketcher.Constraint("Horizontal", 53),
    Sketcher.Constraint("Vertical", 54),
    Sketcher.Constraint("Horizontal", 55),
    Sketcher.Constraint("Vertical", 56),
    Sketcher.Constraint("Horizontal", 57),
    Sketcher.Constraint("Vertical", 58),
    Sketcher.Constraint("Horizontal", 59),
    Sketcher.Constraint("PointOnObject", 0, 2, -2),
    Sketcher.Constraint("Horizontal", 1, 2, 4, 2),
    Sketcher.Constraint("Horizontal", 3, 2, 6, 2),
    Sketcher.Constraint("Horizontal", 5, 2, 8, 2),
    Sketcher.Constraint("Horizontal", 7, 2, 10, 2),
    Sketcher.Constraint("Horizontal", 9, 2, 12, 2),
    Sketcher.Constraint("Horizontal", 11, 2, 14, 2),
    Sketcher.Constraint("Horizontal", 13, 2, 16, 2),
    Sketcher.Constraint("Horizontal", 15, 2, 18, 2),
    Sketcher.Constraint("Horizontal", 17, 2, 20, 2),
    Sketcher.Constraint("Horizontal", 19, 2, 22, 2),
    Sketcher.Constraint("Horizontal", 21, 2, 24, 2),
    Sketcher.Constraint("Horizontal", 23, 2, 26, 2),
    Sketcher.Constraint("Horizontal", 25, 2, 28, 2),
    Sketcher.Constraint("Horizontal", 27, 2, 30, 2),
    Sketcher.Constraint("Horizontal", 29, 2, 32, 2),
    Sketcher.Constraint("Horizontal", 31, 2, 34, 2),
    Sketcher.Constraint("Horizontal", 33, 2, 36, 2),
    Sketcher.Constraint("Horizontal", 35, 2, 38, 2),
    Sketcher.Constraint("Horizontal", 37, 2, 40, 2),
    Sketcher.Constraint("Horizontal", 39, 2, 42, 2),
    Sketcher.Constraint("Horizontal", 41, 2, 44, 2),
    Sketcher.Constraint("Horizontal", 43, 2, 46, 2),
    Sketcher.Constraint("Horizontal", 45, 2, 48, 2),
    Sketcher.Constraint("Horizontal", 47, 2, 50, 2),
    Sketcher.Constraint("Horizontal", 49, 2, 52, 2),
    Sketcher.Constraint("Horizontal", 51, 2, 54, 2),
    Sketcher.Constraint("Horizontal", 53, 2, 56, 2),
    Sketcher.Constraint("Horizontal", 55, 2, 58, 2),
    Sketcher.Constraint("Equal", 3, 5),
    Sketcher.Constraint("Equal", 7, 9),
    Sketcher.Constraint("Equal", 11, 13),
    Sketcher.Constraint("Equal", 15, 17),
    Sketcher.Constraint("Equal", 19, 21),
    Sketcher.Constraint("Equal", 23, 25),
    Sketcher.Constraint("Equal", 27, 29),
    Sketcher.Constraint("Equal", 31, 33),
    Sketcher.Constraint("Equal", 35, 37),
    Sketcher.Constraint("Equal", 39, 41),
    Sketcher.Constraint("Equal", 43, 45),
    Sketcher.Constraint("Equal", 47, 49),
    Sketcher.Constraint("Equal", 51, 53),
    Sketcher.Constraint("Equal", 55, 57),
    Sketcher.Constraint("DistanceX", 1, 1, 1, 2, 5.0),
    Sketcher.Constraint("DistanceY", 0, 2, 0, 1, 19.0),
    Sketcher.Constraint("DistanceY", -1, 1, 0, 2, 3.0),
    Sketcher.Constraint("DistanceX", -1, 1, 4, 2, 15.0),
    Sketcher.Constraint("DistanceX", -1, 1, 8, 2, 30.0),
    Sketcher.Constraint("DistanceX", -1, 1, 12, 2, 45.0),
    Sketcher.Constraint("DistanceX", -1, 1, 16, 2, 60.0),
    Sketcher.Constraint("DistanceX", -1, 1, 20, 2, 75.0),
    Sketcher.Constraint("DistanceX", -1, 1, 24, 2, 90.0),
    Sketcher.Constraint("DistanceX", -1, 1, 28, 2, 105.0),
    Sketcher.Constraint("DistanceX", -1, 1, 32, 2, 120.0),
    Sketcher.Constraint("DistanceX", -1, 1, 36, 2, 135.0),
    Sketcher.Constraint("DistanceX", -1, 1, 40, 2, 150.0),
    Sketcher.Constraint("DistanceX", -1, 1, 44, 2, 165.0),
    Sketcher.Constraint("DistanceX", -1, 1, 48, 2, 180.0),
    Sketcher.Constraint("DistanceX", -1, 1, 52, 2, 195.0),
    Sketcher.Constraint("DistanceX", -1, 1, 56, 2, 210.0),
])
pocket3 = body.newObject("PartDesign::Pocket", "Pocket002")
pocket3.Profile = sketch4
pocket3.Length = 54

# Sketch on XZ plane
sketch5 = body.newObject("Sketcher::SketchObject", "Sketch004")
sketch5.AttachmentSupport = (doc.getObject("XZ_Plane"), [""])
sketch5.MapMode = "FlatFace"
sketch5.addGeometry([
    Part.Circle(Vector(20, -15, 0), Vector(0, 0, 1), 7.5),  # 0
    Part.Circle(Vector(20, -15, 0), Vector(0, 0, 1), 2.2),  # 1
    Part.Circle(Vector(150, -15, 0), Vector(0, 0, 1), 7.5),  # 2
    Part.Circle(Vector(150, -15, 0), Vector(0, 0, 1), 2.2),  # 3
    Part.LineSegment(Vector(0, -22.5, 0), Vector(0, -17.2, 0)),  # 4
    Part.ArcOfCircle(Part.Circle(Vector(0, -15, 0), Vector(0, 0, 1), 2.2), math.radians(-90), math.radians(90)),  # 5
    Part.LineSegment(Vector(0, -12.8, 0), Vector(0, -7.5, 0)),  # 6
    Part.ArcOfCircle(Part.Circle(Vector(0, -15, 0), Vector(0, 0, 1), 7.5), math.radians(-90), math.radians(90)),  # 7
], False)
sketch5.addConstraint([
    Sketcher.Constraint("Coincident", 4, 2, 5, 1),
    Sketcher.Constraint("Coincident", 5, 2, 6, 1),
    Sketcher.Constraint("Coincident", 6, 2, 7, 2),
    Sketcher.Constraint("Coincident", 7, 1, 4, 1),
    Sketcher.Constraint("Vertical", 4),
    Sketcher.Constraint("Vertical", 6),
    Sketcher.Constraint("Coincident", 1, 3, 0, 3),
    Sketcher.Constraint("Coincident", 3, 3, 2, 3),
    Sketcher.Constraint("Coincident", 7, 3, 5, 3),
    Sketcher.Constraint("Equal", 0, 2),
    Sketcher.Constraint("Equal", 1, 3),
    Sketcher.Constraint("Equal", 3, 5),
    Sketcher.Constraint("Equal", 2, 7),
    Sketcher.Constraint("PointOnObject", 5, 3, -2),
    Sketcher.Constraint("PointOnObject", 4, 2, -2),
    Sketcher.Constraint("PointOnObject", 5, 2, -2),
    Sketcher.Constraint("Horizontal", 1, 3, 2, 3),
    Sketcher.Constraint("Horizontal", 3, 3, 5, 3),
    Sketcher.Constraint("Diameter", 0, 15.0),
    Sketcher.Constraint("Diameter", 1, 4.5),
    Sketcher.Constraint("DistanceX", -1, 1, 0, 3, 20.0),
    Sketcher.Constraint("DistanceY", 0, 3, -1, 1, 15.0),
    Sketcher.Constraint("DistanceX", -1, 1, 2, 3, 150.0),
])
pad2 = body.newObject("PartDesign::Pad", "Pad001")
pad2.Profile = sketch5
pad2.Length = 25
pad2.Reversed = True

doc.recompute()
